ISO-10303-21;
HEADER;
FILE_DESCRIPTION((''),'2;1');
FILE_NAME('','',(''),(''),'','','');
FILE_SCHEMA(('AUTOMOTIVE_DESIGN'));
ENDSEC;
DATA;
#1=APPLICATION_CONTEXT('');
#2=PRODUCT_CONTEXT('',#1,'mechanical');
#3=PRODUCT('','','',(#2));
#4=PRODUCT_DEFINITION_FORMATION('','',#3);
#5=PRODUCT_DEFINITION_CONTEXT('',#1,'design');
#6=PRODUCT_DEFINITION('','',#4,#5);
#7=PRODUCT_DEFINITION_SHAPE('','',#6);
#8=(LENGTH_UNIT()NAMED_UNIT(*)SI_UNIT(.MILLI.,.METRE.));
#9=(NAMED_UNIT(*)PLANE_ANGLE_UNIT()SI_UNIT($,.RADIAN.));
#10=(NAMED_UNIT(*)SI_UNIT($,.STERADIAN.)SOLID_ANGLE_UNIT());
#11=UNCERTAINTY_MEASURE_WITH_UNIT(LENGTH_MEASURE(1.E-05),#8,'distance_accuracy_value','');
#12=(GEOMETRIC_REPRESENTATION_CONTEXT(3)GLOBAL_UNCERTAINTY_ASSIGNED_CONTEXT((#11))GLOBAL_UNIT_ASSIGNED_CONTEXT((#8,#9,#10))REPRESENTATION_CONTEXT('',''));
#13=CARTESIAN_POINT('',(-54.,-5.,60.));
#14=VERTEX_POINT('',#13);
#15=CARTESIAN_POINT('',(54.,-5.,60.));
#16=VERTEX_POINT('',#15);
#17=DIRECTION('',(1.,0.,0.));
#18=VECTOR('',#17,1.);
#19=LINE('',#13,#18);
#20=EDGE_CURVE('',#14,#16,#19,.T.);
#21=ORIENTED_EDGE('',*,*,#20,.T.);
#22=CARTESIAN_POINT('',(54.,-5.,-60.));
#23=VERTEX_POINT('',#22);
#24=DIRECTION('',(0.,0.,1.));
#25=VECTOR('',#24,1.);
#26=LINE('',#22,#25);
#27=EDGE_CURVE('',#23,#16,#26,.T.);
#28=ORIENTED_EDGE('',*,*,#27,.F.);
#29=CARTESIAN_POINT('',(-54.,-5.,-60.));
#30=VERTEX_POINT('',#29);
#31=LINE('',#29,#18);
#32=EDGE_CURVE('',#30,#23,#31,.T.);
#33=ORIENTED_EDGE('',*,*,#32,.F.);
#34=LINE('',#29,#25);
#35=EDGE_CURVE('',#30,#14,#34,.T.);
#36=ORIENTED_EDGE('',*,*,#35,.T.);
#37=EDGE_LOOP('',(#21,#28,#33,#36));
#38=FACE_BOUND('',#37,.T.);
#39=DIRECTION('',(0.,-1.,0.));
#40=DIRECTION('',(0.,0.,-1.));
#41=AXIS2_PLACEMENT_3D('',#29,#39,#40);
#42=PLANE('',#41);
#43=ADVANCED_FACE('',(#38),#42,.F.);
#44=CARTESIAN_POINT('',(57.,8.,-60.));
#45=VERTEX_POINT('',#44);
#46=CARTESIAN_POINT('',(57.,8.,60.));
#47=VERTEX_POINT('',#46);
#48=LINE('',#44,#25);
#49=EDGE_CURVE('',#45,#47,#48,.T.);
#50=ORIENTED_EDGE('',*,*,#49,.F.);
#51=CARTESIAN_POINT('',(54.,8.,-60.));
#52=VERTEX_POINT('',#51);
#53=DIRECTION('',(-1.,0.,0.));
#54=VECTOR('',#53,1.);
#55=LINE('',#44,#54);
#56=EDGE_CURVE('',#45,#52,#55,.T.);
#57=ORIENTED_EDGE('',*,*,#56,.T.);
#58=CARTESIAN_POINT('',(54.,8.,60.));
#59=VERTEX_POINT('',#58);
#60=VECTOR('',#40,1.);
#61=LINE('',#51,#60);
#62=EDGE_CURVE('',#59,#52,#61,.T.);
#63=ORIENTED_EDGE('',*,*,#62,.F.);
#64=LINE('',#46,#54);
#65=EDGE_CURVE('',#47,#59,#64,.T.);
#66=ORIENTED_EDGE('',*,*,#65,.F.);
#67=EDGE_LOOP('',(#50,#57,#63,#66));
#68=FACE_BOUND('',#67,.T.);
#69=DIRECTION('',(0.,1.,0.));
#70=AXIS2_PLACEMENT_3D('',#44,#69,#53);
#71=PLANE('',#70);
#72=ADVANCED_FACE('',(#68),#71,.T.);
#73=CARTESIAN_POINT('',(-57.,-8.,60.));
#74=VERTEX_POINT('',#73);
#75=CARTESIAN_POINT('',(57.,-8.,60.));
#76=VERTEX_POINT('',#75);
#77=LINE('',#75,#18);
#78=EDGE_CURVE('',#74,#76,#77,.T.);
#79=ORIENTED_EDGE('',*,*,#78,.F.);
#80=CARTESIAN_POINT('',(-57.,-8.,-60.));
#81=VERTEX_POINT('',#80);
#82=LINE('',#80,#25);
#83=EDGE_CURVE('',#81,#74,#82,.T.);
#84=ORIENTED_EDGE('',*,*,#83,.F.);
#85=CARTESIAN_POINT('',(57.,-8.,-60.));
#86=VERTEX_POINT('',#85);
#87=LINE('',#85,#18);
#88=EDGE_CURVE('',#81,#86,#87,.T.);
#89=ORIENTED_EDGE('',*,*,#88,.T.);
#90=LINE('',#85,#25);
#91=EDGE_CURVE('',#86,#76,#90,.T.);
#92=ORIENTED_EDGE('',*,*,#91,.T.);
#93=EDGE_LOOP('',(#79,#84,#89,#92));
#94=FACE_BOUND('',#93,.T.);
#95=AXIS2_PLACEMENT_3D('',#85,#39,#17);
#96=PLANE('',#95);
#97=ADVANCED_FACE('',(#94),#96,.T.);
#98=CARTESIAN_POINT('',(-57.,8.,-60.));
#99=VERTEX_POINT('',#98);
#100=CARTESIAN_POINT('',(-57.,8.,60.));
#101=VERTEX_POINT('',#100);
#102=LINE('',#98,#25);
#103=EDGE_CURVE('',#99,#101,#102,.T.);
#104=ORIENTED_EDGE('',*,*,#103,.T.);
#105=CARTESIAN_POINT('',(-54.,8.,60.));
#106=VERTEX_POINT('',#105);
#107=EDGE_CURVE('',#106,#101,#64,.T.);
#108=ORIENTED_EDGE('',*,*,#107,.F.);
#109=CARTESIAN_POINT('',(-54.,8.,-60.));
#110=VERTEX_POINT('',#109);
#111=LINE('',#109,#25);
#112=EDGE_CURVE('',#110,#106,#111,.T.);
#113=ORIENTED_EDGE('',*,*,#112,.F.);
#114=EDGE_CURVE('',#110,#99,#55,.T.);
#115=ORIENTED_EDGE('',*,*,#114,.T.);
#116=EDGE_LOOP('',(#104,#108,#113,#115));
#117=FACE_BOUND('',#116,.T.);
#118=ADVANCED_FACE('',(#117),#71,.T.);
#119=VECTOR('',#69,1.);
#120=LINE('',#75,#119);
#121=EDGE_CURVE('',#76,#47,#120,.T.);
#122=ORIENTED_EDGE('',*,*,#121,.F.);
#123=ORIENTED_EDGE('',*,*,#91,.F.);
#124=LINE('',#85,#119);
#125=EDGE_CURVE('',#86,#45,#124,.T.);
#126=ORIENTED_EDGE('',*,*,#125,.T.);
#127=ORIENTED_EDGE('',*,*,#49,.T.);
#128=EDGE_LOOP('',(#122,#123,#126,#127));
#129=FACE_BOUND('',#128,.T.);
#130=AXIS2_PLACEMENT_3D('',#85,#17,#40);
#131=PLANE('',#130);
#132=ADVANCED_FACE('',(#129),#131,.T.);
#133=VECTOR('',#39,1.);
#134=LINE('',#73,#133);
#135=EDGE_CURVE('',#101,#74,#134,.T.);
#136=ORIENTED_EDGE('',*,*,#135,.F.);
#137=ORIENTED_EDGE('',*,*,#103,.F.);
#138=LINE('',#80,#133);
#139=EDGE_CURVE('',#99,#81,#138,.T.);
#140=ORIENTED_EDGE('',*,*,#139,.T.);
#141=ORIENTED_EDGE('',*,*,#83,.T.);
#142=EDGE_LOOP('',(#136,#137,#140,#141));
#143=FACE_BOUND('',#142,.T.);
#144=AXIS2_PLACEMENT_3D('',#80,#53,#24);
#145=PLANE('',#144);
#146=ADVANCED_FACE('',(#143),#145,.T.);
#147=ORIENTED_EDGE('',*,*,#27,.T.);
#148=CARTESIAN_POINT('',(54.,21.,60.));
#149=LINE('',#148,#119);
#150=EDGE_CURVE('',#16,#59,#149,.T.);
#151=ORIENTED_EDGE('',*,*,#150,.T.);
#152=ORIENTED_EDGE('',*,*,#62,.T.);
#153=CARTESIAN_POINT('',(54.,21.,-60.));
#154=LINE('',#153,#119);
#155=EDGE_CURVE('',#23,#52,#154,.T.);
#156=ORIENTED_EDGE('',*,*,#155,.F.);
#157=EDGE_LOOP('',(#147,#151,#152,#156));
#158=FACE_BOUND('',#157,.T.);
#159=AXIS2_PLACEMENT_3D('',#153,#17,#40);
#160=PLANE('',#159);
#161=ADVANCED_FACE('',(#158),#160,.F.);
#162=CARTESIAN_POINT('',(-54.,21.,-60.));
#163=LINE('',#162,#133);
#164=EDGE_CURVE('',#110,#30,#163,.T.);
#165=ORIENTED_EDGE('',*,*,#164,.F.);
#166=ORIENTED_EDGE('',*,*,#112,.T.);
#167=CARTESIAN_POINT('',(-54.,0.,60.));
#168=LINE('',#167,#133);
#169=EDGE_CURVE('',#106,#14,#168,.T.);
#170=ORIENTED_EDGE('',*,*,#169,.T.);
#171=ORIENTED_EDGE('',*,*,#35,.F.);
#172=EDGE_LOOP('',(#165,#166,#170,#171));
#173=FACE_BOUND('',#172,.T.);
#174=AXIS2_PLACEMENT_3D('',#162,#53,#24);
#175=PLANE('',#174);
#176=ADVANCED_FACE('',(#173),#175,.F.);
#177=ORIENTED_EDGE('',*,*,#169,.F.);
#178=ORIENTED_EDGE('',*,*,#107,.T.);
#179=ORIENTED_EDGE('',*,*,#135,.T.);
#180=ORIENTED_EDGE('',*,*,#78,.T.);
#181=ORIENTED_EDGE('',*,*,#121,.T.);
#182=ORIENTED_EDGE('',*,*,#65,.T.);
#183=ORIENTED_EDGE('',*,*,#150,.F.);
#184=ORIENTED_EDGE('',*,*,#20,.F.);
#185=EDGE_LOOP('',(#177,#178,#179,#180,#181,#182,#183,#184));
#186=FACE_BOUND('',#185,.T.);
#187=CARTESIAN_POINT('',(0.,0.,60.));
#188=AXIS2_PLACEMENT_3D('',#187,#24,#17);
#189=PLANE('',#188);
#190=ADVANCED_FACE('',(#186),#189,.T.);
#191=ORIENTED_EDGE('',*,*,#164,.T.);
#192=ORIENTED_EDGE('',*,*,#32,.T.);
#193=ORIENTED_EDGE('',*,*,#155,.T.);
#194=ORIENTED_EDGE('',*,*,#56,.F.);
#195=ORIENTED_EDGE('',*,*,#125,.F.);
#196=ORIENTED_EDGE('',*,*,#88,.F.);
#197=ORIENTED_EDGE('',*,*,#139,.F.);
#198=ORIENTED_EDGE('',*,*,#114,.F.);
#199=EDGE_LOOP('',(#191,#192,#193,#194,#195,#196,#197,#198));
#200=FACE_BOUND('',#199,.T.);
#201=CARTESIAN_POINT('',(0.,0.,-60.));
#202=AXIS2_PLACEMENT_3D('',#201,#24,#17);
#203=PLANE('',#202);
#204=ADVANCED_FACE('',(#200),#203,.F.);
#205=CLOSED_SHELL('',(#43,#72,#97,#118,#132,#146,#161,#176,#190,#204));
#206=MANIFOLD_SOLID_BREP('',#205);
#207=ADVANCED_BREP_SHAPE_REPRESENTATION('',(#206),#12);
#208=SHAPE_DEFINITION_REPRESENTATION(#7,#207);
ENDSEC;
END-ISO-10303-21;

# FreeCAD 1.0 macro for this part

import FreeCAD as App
import Part
import Sketcher
from FreeCAD import Vector
Q = App.Units.Quantity


def add_polygon(sketch, points):
    """Adds a closed chain of lines whose ends are joined by coincident constraints."""
    first, n = sketch.GeometryCount, len(points)
    for a, b in zip(points, points[1:] + points[:1]):
        sketch.addGeometry(Part.LineSegment(App.Vector(*a, 0), App.Vector(*b, 0)), False)
    for i in range(n):
        sketch.addConstraint(Sketcher.Constraint("Coincident", first + i, 2, first + (i + 1) % n, 1))

doc = App.newDocument("Part")
body = doc.addObject("PartDesign::Body", "Body")

# Sketch on XY plane
sketch1 = doc.addObject("Sketcher::SketchObject", "Sketch")
body.addObject(sketch1)
sketch1.AttachmentSupport = (doc.XY_Plane, [""])
sketch1.MapMode = "FlatFace"
add_polygon(sketch1, [(-57, 8), (-57, -8), (57, -8), (57, 8)])  # lines 0-3
sketch1.addConstraint(Sketcher.Constraint("Vertical", 0))
sketch1.addConstraint(Sketcher.Constraint("Horizontal", 1))
sketch1.addConstraint(Sketcher.Constraint("Vertical", 2))
sketch1.addConstraint(Sketcher.Constraint("Horizontal", 3))
sketch1.addConstraint(Sketcher.Constraint("Symmetric", 0, 2, 2, 2, -1, 1))
sketch1.addConstraint(Sketcher.Constraint("DistanceX", 1, 1, 1, 2, Q("114 mm")))
sketch1.addConstraint(Sketcher.Constraint("DistanceY", 0, 2, 0, 1, Q("16 mm")))
pad1 = doc.addObject("PartDesign::Pad", "Pad")
body.addObject(pad1)
pad1.Profile = sketch1
pad1.Type = "TwoLengths"
pad1.Length = 60
pad1.Length2 = 60

# Sketch on XY plane
sketch2 = doc.addObject("Sketcher::SketchObject", "Sketch001")
body.addObject(sketch2)
sketch2.AttachmentSupport = (doc.XY_Plane, [""])
sketch2.MapMode = "FlatFace"
sketch2.AttachmentOffset = App.Placement(Vector(0, 0, 60), App.Rotation())
add_polygon(sketch2, [(-54, 21), (-54, -5), (54, -5), (54, 21)])  # lines 0-3
sketch2.addConstraint(Sketcher.Constraint("Vertical", 0))
sketch2.addConstraint(Sketcher.Constraint("Horizontal", 1))
sketch2.addConstraint(Sketcher.Constraint("Vertical", 2))
sketch2.addConstraint(Sketcher.Constraint("Horizontal", 3))
sketch2.addConstraint(Sketcher.Constraint("DistanceX", 1, 1, 1, 2, Q("108 mm")))
sketch2.addConstraint(Sketcher.Constraint("DistanceY", 0, 2, 0, 1, Q("26 mm")))
sketch2.addConstraint(Sketcher.Constraint("DistanceX", 0, 2, -1, 1, Q("54 mm")))
sketch2.addConstraint(Sketcher.Constraint("DistanceY", 0, 2, -1, 1, Q("5 mm")))
pocket1 = doc.addObject("PartDesign::Pocket", "Pocket")
body.addObject(pocket1)
pocket1.Profile = sketch2
pocket1.Type = "ThroughAll"

doc.recompute()
